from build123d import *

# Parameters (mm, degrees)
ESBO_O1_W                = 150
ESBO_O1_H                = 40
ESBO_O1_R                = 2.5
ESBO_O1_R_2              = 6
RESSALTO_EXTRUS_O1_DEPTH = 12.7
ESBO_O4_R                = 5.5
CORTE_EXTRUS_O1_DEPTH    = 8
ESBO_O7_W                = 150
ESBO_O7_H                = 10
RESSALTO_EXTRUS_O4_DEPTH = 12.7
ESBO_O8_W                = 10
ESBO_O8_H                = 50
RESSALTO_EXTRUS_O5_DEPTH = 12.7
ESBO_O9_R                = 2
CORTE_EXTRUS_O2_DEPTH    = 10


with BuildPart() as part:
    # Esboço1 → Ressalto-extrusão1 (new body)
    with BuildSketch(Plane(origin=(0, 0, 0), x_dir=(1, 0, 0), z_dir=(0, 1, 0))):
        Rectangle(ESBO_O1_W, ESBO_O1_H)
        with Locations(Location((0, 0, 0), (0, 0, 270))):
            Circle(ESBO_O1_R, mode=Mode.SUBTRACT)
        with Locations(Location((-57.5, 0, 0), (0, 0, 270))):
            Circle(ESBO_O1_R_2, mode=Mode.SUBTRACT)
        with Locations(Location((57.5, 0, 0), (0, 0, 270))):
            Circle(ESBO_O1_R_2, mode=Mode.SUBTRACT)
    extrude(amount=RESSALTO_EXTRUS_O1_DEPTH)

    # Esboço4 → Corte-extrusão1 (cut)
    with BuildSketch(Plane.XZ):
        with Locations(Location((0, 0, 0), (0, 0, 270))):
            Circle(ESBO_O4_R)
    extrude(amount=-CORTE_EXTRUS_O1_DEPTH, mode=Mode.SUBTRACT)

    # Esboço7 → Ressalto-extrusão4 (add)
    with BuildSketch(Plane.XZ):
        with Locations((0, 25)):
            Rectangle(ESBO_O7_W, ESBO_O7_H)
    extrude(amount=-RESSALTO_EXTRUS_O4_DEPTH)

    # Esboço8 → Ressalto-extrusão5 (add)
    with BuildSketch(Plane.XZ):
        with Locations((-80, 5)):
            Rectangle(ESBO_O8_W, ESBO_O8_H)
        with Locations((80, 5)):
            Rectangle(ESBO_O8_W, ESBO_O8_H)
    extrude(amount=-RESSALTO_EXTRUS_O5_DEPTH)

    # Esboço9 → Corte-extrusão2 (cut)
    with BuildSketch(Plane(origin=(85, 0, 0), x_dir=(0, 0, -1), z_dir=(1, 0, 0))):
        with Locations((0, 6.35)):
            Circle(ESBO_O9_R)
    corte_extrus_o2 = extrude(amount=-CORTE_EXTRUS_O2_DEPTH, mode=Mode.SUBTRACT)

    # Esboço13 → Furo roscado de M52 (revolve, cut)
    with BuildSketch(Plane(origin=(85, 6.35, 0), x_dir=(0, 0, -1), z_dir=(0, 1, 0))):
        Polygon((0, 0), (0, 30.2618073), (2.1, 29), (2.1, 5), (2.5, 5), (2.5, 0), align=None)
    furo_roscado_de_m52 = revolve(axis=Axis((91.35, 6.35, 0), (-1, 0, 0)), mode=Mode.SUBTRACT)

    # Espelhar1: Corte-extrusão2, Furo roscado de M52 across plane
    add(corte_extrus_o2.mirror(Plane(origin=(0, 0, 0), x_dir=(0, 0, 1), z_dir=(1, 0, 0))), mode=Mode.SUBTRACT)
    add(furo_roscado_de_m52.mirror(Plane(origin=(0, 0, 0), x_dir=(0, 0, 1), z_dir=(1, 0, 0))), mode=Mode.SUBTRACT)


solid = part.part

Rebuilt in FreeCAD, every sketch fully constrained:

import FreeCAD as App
import Part
import Sketcher
from FreeCAD import Vector
Q = App.Units.Quantity


def add_polygon(sketch, points):
    """Adds a closed chain of lines whose ends are joined by coincident constraints."""
    first, n = sketch.GeometryCount, len(points)
    for a, b in zip(points, points[1:] + points[:1]):
        sketch.addGeometry(Part.LineSegment(App.Vector(*a, 0), App.Vector(*b, 0)), False)
    for i in range(n):
        sketch.addConstraint(Sketcher.Constraint("Coincident", first + i, 2, first + (i + 1) % n, 1))

doc = App.newDocument("Part")
body = doc.addObject("PartDesign::Body", "Body")

# Sketch on XZ plane
sketch1 = doc.addObject("Sketcher::SketchObject", "Sketch")
body.addObject(sketch1)
sketch1.AttachmentSupport = (doc.XZ_Plane, [""])
sketch1.MapMode = "FlatFace"
add_polygon(sketch1, [(-75, -20), (-75, 20), (75, 20), (75, -20)])  # lines 0-3
sketch1.addGeometry(Part.Circle(Vector(-57.5, 0, 0), Vector(0, 0, 1), 6), False)  # 4
sketch1.addGeometry(Part.Circle(Vector(0, 0, 0), Vector(0, 0, 1), 2.5), False)  # 5
sketch1.addGeometry(Part.Circle(Vector(57.5, 0, 0), Vector(0, 0, 1), 6), False)  # 6
sketch1.addConstraint(Sketcher.Constraint("Vertical", 0))
sketch1.addConstraint(Sketcher.Constraint("Horizontal", 1))
sketch1.addConstraint(Sketcher.Constraint("Vertical", 2))
sketch1.addConstraint(Sketcher.Constraint("Horizontal", 3))
sketch1.addConstraint(Sketcher.Constraint("Coincident", 5, 3, -1, 1))
sketch1.addConstraint(Sketcher.Constraint("Equal", 4, 6))
sketch1.addConstraint(Sketcher.Constraint("Symmetric", 4, 3, 6, 3, -1, 1))
sketch1.addConstraint(Sketcher.Constraint("Symmetric", 0, 2, 2, 2, -1, 1))
sketch1.addConstraint(Sketcher.Constraint("PointOnObject", 4, 3, -1))
sketch1.addConstraint(Sketcher.Constraint("Diameter", 4, Q("12 mm")))
sketch1.addConstraint(Sketcher.Constraint("Diameter", 5, Q("5 mm")))
sketch1.addConstraint(Sketcher.Constraint("DistanceX", 1, 1, 1, 2, Q("150 mm")))
sketch1.addConstraint(Sketcher.Constraint("DistanceY", 0, 1, 0, 2, Q("40 mm")))
sketch1.addConstraint(Sketcher.Constraint("DistanceX", 4, 3, 6, 3, Q("115 mm")))
pad1 = doc.addObject("PartDesign::Pad", "Pad")
body.addObject(pad1)
pad1.Profile = sketch1
pad1.Length = 12.7
pad1.Reversed = True

# Sketch on XZ plane
sketch2 = doc.addObject("Sketcher::SketchObject", "Sketch001")
body.addObject(sketch2)
sketch2.AttachmentSupport = (doc.XZ_Plane, [""])
sketch2.MapMode = "FlatFace"
sketch2.addGeometry(Part.Circle(Vector(0, 0, 0), Vector(0, 0, 1), 6), False)
sketch2.addConstraint(Sketcher.Constraint("Coincident", 0, 3, -1, 1))
sketch2.addConstraint(Sketcher.Constraint("Diameter", 0, Q("11 mm")))
pocket1 = doc.addObject("PartDesign::Pocket", "Pocket")
body.addObject(pocket1)
pocket1.Profile = sketch2
pocket1.Length = 8

# Sketch on XZ plane
sketch3 = doc.addObject("Sketcher::SketchObject", "Sketch002")
body.addObject(sketch3)
sketch3.AttachmentSupport = (doc.XZ_Plane, [""])
sketch3.MapMode = "FlatFace"
add_polygon(sketch3, [(-75, 30), (-75, 20), (75, 20), (75, 30)])  # lines 0-3
sketch3.addConstraint(Sketcher.Constraint("Vertical", 0))
sketch3.addConstraint(Sketcher.Constraint("Horizontal", 1))
sketch3.addConstraint(Sketcher.Constraint("Vertical", 2))
sketch3.addConstraint(Sketcher.Constraint("Horizontal", 3))
sketch3.addConstraint(Sketcher.Constraint("DistanceX", 1, 1, 1, 2, Q("150 mm")))
sketch3.addConstraint(Sketcher.Constraint("DistanceY", 0, 2, 0, 1, Q("10 mm")))
sketch3.addConstraint(Sketcher.Constraint("DistanceX", 0, 2, -1, 1, Q("75 mm")))
sketch3.addConstraint(Sketcher.Constraint("DistanceY", -1, 1, 0, 2, Q("20 mm")))
pad2 = doc.addObject("PartDesign::Pad", "Pad001")
body.addObject(pad2)
pad2.Profile = sketch3
pad2.Length = 12.7
pad2.Reversed = True

# Sketch on XZ plane
sketch4 = doc.addObject("Sketcher::SketchObject", "Sketch003")
body.addObject(sketch4)
sketch4.AttachmentSupport = (doc.XZ_Plane, [""])
sketch4.MapMode = "FlatFace"
add_polygon(sketch4, [(-85, 30), (-85, -20), (-75, -20), (-75, 30)])  # lines 0-3
add_polygon(sketch4, [(75, 30), (75, -20), (85, -20), (85, 30)])  # lines 4-7
sketch4.addConstraint(Sketcher.Constraint("Vertical", 0))
sketch4.addConstraint(Sketcher.Constraint("Horizontal", 1))
sketch4.addConstraint(Sketcher.Constraint("Vertical", 2))
sketch4.addConstraint(Sketcher.Constraint("Horizontal", 3))
sketch4.addConstraint(Sketcher.Constraint("Vertical", 4))
sketch4.addConstraint(Sketcher.Constraint("Horizontal", 5))
sketch4.addConstraint(Sketcher.Constraint("Vertical", 6))
sketch4.addConstraint(Sketcher.Constraint("Horizontal", 7))
sketch4.addConstraint(Sketcher.Constraint("Symmetric", 1, 2, 4, 2, -2))
sketch4.addConstraint(Sketcher.Constraint("Symmetric", 3, 2, 6, 2, -2))
sketch4.addConstraint(Sketcher.Constraint("DistanceX", 1, 1, 1, 2, Q("10 mm")))
sketch4.addConstraint(Sketcher.Constraint("DistanceY", 0, 2, 0, 1, Q("50 mm")))
sketch4.addConstraint(Sketcher.Constraint("DistanceX", 0, 2, -1, 1, Q("85 mm")))
sketch4.addConstraint(Sketcher.Constraint("DistanceY", 0, 2, -1, 1, Q("20 mm")))
pad3 = doc.addObject("PartDesign::Pad", "Pad002")
body.addObject(pad3)
pad3.Profile = sketch4
pad3.Length = 12.7
pad3.Reversed = True

# Sketch on YZ plane
sketch5 = doc.addObject("Sketcher::SketchObject", "Sketch004")
body.addObject(sketch5)
sketch5.AttachmentSupport = (doc.YZ_Plane, [""])
sketch5.MapMode = "FlatFace"
sketch5.AttachmentOffset = App.Placement(Vector(0, 0, 85), App.Rotation())
sketch5.addGeometry(Part.Circle(Vector(6.3, 0, 0), Vector(0, 0, 1), 2), False)
sketch5.addConstraint(Sketcher.Constraint("PointOnObject", 0, 3, -1))
sketch5.addConstraint(Sketcher.Constraint("Diameter", 0, Q("4 mm")))
sketch5.addConstraint(Sketcher.Constraint("DistanceX", -1, 1, 0, 3, Q("6.35 mm")))
pocket2 = doc.addObject("PartDesign::Pocket", "Pocket001")
body.addObject(pocket2)
pocket2.Profile = sketch5
pocket2.Length = 10

# Sketch on XZ plane
sketch6 = doc.addObject("Sketcher::SketchObject", "Sketch005")
body.addObject(sketch6)
sketch6.AttachmentSupport = (doc.XZ_Plane, [""])
sketch6.MapMode = "FlatFace"
sketch6.AttachmentOffset = App.Placement(Vector(0, 0, -6.35), App.Rotation())
add_polygon(sketch6, [(54.74, 0), (85, 0), (85, -2.5), (80, -2.5), (80, -2.1), (56, -2.1)])  # lines 0-5
sketch6.addConstraint(Sketcher.Constraint("Horizontal", 0))
sketch6.addConstraint(Sketcher.Constraint("Vertical", 1))
sketch6.addConstraint(Sketcher.Constraint("Horizontal", 2))
sketch6.addConstraint(Sketcher.Constraint("Vertical", 3))
sketch6.addConstraint(Sketcher.Constraint("Horizontal", 4))
sketch6.addConstraint(Sketcher.Constraint("PointOnObject", 0, 2, -1))
sketch6.addConstraint(Sketcher.Constraint("DistanceX", 2, 2, 2, 1, Q("5 mm")))
sketch6.addConstraint(Sketcher.Constraint("DistanceX", 4, 2, 4, 1, Q("24 mm")))
sketch6.addConstraint(Sketcher.Constraint("Angle", 5, Q("121 deg")))
sketch6.addConstraint(Sketcher.Constraint("DistanceY", 1, 2, 1, 1, Q("2.5 mm")))
sketch6.addConstraint(Sketcher.Constraint("DistanceY", 3, 1, 3, 2, Q("0.4 mm")))
sketch6.addConstraint(Sketcher.Constraint("DistanceX", -1, 1, 0, 2, Q("85 mm")))
groove = doc.addObject("PartDesign::Groove", "Groove")
body.addObject(groove)
groove.Profile = sketch6
groove.ReferenceAxis = (sketch6, ["H_Axis"])
groove.Angle = 360
doc.recompute()

mirrored = doc.addObject("PartDesign::Mirrored", "Mirrored")
body.addObject(mirrored)
mirrored.Originals = [pocket2, groove]
mirrored.MirrorPlane = (doc.YZ_Plane, [""])
body.Tip = mirrored

doc.recompute()
